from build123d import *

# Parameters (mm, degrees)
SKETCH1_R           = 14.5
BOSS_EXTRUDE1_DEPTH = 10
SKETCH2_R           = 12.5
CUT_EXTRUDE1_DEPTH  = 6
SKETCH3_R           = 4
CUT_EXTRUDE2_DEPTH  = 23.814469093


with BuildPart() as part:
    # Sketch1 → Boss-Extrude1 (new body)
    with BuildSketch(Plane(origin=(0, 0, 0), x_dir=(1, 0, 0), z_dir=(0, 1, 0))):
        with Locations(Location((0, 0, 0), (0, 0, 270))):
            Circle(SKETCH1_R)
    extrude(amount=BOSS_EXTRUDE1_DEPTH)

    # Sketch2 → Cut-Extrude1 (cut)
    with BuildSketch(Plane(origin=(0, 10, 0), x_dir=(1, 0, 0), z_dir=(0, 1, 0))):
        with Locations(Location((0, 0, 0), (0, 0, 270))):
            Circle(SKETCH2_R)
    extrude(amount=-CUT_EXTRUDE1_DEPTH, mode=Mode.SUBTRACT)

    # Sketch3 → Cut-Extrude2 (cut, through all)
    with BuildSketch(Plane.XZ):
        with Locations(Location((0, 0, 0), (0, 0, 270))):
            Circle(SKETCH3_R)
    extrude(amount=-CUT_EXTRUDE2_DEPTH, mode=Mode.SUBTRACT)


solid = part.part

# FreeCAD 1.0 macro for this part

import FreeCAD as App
import Part
import Sketcher
from FreeCAD import Vector

doc = App.newDocument("Part")
body = doc.addObject("PartDesign::Body", "Body")

# Sketch on XZ plane
sketch1 = body.newObject("Sketcher::SketchObject", "Sketch")
sketch1.AttachmentSupport = (doc.getObject("XZ_Plane"), [""])
sketch1.MapMode = "FlatFace"
sketch1.addGeometry(Part.Circle(Vector(0, 0, 0), Vector(0, 0, 1), 14.5), False)
sketch1.addConstraint([
    Sketcher.Constraint("Coincident", 0, 3, -1, 1),
    Sketcher.Constraint("Diameter", 0, 29.0),
])
pad1 = body.newObject("PartDesign::Pad", "Pad")
pad1.Profile = sketch1
pad1.Length = 10
pad1.Reversed = True

# Sketch on XZ plane
sketch2 = body.newObject("Sketcher::SketchObject", "Sketch001")
sketch2.AttachmentSupport = (doc.getObject("XZ_Plane"), [""])
sketch2.MapMode = "FlatFace"
sketch2.AttachmentOffset = App.Placement(Vector(0, 0, -10), App.Rotation())
sketch2.addGeometry(Part.Circle(Vector(0, 0, 0), Vector(0, 0, 1), 12.5), False)
sketch2.addConstraint([
    Sketcher.Constraint("Coincident", 0, 3, -1, 1),
    Sketcher.Constraint("Diameter", 0, 25.0),
])
pocket1 = body.newObject("PartDesign::Pocket", "Pocket")
pocket1.Profile = sketch2
pocket1.Length = 6
pocket1.Reversed = True

# Sketch on XZ plane
sketch3 = body.newObject("Sketcher::SketchObject", "Sketch002")
sketch3.AttachmentSupport = (doc.getObject("XZ_Plane"), [""])
sketch3.MapMode = "FlatFace"
sketch3.addGeometry(Part.Circle(Vector(0, 0, 0), Vector(0, 0, 1), 4), False)
sketch3.addConstraint([
    Sketcher.Constraint("Coincident", 0, 3, -1, 1),
    Sketcher.Constraint("Diameter", 0, 8.0),
])
pocket2 = body.newObject("PartDesign::Pocket", "Pocket001")
pocket2.Profile = sketch3
pocket2.Type = "ThroughAll"

doc.recompute()
